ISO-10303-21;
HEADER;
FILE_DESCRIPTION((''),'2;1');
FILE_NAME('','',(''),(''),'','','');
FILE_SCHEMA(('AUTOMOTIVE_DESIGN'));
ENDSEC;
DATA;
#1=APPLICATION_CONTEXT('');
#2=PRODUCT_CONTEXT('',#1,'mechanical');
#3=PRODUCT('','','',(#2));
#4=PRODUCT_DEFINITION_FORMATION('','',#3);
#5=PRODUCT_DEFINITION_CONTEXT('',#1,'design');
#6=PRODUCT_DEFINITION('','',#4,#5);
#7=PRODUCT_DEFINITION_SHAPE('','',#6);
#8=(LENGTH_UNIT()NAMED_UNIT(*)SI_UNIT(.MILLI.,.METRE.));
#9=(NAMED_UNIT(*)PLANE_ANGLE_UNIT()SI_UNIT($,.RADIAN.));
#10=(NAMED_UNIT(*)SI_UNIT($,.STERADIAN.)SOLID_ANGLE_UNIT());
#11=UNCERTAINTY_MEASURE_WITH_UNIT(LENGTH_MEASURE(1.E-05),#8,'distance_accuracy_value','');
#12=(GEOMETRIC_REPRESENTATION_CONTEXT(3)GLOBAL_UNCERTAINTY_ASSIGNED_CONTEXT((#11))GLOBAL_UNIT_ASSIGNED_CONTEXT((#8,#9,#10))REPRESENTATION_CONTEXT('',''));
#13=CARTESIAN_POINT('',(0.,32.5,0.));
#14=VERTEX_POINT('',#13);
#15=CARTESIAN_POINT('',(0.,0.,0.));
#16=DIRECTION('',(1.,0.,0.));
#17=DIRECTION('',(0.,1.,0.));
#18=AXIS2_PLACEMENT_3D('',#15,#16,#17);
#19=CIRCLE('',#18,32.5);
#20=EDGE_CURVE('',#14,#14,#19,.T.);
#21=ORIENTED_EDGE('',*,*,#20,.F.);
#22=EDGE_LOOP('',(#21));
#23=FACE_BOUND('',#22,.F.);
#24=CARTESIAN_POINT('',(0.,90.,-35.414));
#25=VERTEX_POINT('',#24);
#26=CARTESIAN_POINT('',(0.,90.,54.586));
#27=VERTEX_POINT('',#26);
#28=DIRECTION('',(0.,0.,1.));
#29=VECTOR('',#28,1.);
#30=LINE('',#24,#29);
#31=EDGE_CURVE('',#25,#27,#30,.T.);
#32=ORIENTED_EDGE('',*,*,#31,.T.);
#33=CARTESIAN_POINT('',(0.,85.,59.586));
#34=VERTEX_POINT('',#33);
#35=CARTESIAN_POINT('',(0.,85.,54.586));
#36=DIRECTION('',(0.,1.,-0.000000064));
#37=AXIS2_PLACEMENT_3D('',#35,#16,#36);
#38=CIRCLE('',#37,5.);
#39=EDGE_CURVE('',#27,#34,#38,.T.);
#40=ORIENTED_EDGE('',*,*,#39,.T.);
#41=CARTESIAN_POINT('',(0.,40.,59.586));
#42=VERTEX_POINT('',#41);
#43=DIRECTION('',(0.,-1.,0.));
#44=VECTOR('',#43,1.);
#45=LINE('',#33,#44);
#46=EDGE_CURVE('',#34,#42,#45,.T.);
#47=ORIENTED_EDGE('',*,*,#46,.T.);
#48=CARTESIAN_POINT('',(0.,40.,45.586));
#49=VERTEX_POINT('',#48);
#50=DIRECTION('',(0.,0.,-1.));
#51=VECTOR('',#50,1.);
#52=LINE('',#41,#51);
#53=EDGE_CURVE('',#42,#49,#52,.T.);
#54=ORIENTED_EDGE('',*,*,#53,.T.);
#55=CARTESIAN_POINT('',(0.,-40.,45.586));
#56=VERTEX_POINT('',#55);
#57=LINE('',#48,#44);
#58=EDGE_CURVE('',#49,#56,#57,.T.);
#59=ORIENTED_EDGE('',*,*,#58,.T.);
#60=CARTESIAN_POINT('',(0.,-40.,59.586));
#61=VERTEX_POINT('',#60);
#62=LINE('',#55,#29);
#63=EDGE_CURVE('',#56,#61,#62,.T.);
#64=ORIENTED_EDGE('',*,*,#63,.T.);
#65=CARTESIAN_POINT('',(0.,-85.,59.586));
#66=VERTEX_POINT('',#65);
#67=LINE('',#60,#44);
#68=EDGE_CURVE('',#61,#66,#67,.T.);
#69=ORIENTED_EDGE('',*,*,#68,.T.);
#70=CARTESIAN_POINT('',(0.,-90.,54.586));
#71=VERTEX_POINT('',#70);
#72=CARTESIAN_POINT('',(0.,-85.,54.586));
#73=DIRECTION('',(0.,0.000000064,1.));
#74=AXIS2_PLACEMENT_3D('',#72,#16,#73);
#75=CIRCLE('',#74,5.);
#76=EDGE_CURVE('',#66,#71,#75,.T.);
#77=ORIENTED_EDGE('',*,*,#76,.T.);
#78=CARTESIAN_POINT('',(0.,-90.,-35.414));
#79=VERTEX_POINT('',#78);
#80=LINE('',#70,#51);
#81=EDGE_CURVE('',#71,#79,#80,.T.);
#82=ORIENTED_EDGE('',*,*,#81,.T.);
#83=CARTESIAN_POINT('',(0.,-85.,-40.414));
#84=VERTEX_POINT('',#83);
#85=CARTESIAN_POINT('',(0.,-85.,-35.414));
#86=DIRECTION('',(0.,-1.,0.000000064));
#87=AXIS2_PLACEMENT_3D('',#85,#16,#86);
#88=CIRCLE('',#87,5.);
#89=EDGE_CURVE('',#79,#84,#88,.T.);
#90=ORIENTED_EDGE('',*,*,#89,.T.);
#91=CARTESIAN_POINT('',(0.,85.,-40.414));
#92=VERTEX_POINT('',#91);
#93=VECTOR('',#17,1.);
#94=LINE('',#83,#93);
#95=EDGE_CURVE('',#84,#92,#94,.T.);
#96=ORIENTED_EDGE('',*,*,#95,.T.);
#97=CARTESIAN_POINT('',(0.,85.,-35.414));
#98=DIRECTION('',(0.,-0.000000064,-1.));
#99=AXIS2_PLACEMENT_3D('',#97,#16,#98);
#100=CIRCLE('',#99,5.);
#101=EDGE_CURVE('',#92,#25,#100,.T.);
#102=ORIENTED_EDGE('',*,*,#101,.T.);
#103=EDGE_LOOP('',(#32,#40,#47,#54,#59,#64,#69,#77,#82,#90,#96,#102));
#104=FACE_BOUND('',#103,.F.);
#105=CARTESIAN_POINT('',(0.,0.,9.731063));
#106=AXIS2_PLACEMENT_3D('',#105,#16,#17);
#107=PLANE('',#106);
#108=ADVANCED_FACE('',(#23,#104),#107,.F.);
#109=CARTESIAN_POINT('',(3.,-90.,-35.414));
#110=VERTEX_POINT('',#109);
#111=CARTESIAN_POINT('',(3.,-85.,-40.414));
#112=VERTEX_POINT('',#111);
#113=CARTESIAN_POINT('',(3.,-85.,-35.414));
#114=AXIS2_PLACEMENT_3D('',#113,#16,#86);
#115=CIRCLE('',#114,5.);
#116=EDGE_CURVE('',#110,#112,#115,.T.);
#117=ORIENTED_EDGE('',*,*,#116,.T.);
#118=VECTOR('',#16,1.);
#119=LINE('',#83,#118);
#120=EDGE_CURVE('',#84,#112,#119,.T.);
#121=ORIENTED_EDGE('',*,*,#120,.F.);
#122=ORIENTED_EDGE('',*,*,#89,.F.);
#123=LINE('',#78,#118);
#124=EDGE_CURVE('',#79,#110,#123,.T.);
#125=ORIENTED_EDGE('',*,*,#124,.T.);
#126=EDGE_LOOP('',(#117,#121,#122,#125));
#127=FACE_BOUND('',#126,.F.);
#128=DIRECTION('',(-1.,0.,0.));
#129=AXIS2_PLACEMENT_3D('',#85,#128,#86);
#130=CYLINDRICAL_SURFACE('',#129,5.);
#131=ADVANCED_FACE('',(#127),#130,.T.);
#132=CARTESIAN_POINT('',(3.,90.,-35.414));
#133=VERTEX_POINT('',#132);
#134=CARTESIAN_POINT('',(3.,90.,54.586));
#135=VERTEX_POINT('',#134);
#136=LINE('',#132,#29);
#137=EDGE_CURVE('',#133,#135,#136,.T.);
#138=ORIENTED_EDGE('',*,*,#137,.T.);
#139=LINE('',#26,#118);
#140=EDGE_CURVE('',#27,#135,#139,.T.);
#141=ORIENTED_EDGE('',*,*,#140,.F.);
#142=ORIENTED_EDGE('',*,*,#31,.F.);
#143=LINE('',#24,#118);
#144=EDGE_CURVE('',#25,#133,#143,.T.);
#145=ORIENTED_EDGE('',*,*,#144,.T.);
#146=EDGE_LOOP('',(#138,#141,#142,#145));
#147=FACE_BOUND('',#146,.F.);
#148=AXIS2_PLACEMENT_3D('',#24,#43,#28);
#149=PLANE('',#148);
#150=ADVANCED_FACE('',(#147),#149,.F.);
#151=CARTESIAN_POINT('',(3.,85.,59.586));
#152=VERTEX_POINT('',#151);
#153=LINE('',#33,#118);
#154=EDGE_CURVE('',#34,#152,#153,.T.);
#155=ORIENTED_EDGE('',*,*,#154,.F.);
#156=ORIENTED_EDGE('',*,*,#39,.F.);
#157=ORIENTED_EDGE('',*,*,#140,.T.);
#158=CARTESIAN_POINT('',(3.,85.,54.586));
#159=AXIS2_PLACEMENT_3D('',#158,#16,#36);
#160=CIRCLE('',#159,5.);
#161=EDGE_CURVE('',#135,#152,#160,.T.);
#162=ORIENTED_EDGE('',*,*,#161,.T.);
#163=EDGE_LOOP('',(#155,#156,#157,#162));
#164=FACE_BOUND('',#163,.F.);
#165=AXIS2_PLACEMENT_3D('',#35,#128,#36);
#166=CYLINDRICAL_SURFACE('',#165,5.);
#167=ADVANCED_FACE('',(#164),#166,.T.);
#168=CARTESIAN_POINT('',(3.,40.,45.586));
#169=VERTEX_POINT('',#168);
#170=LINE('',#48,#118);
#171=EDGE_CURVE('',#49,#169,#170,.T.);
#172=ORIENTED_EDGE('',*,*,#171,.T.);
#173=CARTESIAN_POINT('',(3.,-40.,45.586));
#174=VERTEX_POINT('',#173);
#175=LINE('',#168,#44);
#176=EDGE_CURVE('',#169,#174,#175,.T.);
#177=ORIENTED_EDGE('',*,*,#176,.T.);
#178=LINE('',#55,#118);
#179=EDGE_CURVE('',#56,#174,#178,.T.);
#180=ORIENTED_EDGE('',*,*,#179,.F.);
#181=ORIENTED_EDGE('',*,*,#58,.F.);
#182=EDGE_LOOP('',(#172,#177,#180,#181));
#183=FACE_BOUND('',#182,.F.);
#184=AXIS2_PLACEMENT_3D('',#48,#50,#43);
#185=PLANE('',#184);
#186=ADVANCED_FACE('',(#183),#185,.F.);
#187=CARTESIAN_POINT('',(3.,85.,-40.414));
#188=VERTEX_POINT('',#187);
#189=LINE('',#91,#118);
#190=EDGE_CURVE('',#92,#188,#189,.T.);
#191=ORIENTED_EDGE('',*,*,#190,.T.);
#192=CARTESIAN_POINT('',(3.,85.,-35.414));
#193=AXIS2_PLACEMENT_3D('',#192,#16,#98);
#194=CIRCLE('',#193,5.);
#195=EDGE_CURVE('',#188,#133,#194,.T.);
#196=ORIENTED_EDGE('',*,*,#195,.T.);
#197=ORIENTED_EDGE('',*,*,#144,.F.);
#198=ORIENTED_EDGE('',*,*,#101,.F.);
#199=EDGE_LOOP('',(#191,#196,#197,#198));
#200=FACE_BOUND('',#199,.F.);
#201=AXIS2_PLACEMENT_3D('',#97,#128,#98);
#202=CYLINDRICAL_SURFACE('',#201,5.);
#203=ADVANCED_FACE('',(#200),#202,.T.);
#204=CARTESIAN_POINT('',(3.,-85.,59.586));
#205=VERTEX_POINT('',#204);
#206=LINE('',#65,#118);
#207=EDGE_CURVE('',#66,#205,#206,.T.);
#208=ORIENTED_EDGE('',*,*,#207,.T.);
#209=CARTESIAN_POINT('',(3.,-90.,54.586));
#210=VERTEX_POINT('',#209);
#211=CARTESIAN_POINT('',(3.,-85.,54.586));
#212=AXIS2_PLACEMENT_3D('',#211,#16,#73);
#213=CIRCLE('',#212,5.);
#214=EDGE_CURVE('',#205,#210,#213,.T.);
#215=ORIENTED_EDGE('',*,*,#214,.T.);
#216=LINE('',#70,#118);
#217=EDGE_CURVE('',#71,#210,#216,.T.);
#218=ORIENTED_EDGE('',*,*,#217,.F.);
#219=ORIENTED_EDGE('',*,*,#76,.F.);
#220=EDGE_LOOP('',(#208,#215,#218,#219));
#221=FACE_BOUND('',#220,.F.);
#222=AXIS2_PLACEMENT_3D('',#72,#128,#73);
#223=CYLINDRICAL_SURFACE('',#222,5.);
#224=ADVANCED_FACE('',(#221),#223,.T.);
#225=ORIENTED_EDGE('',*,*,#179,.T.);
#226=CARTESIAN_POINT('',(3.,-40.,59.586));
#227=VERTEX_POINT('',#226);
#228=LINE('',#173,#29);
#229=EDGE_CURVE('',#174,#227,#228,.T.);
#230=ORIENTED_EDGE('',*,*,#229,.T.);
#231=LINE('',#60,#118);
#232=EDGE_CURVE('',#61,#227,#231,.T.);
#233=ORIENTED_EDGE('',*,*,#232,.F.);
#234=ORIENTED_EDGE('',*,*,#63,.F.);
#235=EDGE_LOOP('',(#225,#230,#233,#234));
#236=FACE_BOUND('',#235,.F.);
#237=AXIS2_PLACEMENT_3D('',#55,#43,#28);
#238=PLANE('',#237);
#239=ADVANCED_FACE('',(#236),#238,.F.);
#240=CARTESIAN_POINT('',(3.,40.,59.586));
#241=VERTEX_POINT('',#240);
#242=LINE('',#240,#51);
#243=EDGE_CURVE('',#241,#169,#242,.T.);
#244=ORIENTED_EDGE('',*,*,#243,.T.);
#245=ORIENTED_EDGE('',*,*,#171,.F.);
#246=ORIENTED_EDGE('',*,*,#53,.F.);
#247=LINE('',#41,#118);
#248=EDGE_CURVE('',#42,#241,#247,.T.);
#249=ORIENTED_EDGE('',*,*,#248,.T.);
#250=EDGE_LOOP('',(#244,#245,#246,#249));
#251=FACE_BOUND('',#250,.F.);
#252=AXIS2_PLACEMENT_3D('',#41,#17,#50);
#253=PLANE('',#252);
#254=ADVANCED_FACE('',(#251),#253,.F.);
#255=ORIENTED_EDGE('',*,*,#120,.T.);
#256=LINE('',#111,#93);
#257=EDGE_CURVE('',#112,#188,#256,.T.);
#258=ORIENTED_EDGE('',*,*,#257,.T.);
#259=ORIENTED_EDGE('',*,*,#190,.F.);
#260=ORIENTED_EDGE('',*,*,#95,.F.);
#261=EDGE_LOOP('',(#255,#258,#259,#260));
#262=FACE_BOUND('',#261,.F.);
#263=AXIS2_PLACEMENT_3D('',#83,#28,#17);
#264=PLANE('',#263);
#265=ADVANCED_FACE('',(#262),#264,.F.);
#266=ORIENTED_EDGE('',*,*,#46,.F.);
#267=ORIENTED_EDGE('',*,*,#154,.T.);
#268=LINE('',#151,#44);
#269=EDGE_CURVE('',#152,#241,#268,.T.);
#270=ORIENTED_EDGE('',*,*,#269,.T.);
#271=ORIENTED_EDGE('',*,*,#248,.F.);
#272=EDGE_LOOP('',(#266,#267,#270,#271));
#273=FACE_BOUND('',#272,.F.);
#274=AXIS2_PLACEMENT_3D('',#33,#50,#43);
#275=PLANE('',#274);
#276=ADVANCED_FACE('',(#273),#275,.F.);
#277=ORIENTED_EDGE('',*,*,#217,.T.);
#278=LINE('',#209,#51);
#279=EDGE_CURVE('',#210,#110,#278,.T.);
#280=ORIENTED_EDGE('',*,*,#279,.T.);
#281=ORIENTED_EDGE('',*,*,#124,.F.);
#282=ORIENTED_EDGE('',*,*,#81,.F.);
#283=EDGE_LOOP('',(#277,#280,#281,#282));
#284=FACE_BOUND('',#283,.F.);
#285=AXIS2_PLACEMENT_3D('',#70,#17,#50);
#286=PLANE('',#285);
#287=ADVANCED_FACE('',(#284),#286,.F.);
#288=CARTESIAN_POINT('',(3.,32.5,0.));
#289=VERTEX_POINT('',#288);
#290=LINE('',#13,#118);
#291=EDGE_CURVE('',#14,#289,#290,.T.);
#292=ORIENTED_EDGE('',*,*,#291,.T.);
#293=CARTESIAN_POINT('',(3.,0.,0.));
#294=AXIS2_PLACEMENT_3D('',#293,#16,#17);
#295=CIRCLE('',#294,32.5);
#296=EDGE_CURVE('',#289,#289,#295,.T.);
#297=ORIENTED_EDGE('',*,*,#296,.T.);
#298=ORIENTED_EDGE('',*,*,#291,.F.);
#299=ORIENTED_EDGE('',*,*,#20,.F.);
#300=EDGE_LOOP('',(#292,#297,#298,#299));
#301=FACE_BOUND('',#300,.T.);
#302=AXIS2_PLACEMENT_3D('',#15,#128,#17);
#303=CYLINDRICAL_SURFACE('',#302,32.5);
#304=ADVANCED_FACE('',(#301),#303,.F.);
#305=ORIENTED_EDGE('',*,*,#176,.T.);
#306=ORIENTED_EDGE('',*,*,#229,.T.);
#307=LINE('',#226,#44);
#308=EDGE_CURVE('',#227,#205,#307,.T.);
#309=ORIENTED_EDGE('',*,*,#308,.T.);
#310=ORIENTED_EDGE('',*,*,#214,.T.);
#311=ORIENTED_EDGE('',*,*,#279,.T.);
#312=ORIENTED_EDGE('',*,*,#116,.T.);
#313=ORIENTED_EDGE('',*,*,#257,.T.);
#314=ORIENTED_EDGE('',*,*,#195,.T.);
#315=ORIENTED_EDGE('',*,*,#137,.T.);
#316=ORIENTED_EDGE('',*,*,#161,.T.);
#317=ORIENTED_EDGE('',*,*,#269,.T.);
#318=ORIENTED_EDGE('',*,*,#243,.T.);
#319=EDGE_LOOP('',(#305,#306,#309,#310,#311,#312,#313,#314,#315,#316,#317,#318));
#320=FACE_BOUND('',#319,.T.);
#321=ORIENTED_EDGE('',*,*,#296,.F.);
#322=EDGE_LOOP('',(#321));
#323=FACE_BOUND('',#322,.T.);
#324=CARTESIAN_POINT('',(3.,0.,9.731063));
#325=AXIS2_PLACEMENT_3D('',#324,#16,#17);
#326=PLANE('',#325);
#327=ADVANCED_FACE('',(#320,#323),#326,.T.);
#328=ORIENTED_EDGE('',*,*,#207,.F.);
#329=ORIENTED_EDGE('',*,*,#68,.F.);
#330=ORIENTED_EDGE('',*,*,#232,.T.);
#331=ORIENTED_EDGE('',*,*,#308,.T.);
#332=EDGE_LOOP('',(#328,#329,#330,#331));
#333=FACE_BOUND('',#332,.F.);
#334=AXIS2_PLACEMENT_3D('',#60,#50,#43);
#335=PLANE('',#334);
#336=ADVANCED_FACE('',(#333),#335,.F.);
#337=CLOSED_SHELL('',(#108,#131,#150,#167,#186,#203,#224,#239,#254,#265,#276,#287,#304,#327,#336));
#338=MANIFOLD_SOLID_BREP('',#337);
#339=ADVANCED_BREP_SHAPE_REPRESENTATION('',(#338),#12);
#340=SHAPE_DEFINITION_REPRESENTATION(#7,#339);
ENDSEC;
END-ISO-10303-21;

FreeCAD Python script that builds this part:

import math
import FreeCAD as App
import Part
import Sketcher
Q = App.Units.Quantity

doc = App.newDocument("Part")
body = doc.addObject("PartDesign::Body", "Body")

# Sketch on YZ plane
sketch1 = body.newObject("Sketcher::SketchObject", "Sketch")
sketch1.AttachmentSupport = (doc.getObject("YZ_Plane"), [""])
sketch1.MapMode = "FlatFace"
sketch1.addGeometry([
    Part.ArcOfCircle(Part.Circle(App.Vector(85, 54.6, 0), App.Vector(0, 0, 1), 5), math.radians(0), math.radians(90)),  # 0
    Part.LineSegment(App.Vector(85, 59.6, 0), App.Vector(40, 59.6, 0)),  # 1
    Part.LineSegment(App.Vector(40, 59.6, 0), App.Vector(40, 45.6, 0)),  # 2
    Part.LineSegment(App.Vector(40, 45.6, 0), App.Vector(-40, 45.6, 0)),  # 3
    Part.LineSegment(App.Vector(-40, 45.6, 0), App.Vector(-40, 59.6, 0)),  # 4
    Part.LineSegment(App.Vector(-40, 59.6, 0), App.Vector(-85, 59.6, 0)),  # 5
    Part.ArcOfCircle(Part.Circle(App.Vector(-85, 54.6, 0), App.Vector(0, 0, 1), 5), math.radians(90), math.radians(180)),  # 6
    Part.LineSegment(App.Vector(-90, 54.6, 0), App.Vector(-90, -35.4, 0)),  # 7
    Part.ArcOfCircle(Part.Circle(App.Vector(-85, -35.4, 0), App.Vector(0, 0, 1), 5), math.radians(180), math.radians(270)),  # 8
    Part.LineSegment(App.Vector(-85, -40.4, 0), App.Vector(85, -40.4, 0)),  # 9
    Part.ArcOfCircle(Part.Circle(App.Vector(85, -35.4, 0), App.Vector(0, 0, 1), 5), math.radians(-90), math.radians(0)),  # 10
    Part.LineSegment(App.Vector(90, -35.4, 0), App.Vector(90, 54.6, 0)),  # 11
    Part.Circle(App.Vector(0, 0, 0), App.Vector(0, 0, 1), 32.5),  # 12
], False)
sketch1.addConstraint([
    Sketcher.Constraint("Tangent", 0, 2, 1, 1),
    Sketcher.Constraint("Coincident", 1, 2, 2, 1),
    Sketcher.Constraint("Coincident", 2, 2, 3, 1),
    Sketcher.Constraint("Coincident", 3, 2, 4, 1),
    Sketcher.Constraint("Coincident", 4, 2, 5, 1),
    Sketcher.Constraint("Tangent", 5, 2, 6, 1),
    Sketcher.Constraint("Tangent", 6, 2, 7, 1),
    Sketcher.Constraint("Tangent", 7, 2, 8, 1),
    Sketcher.Constraint("Tangent", 8, 2, 9, 1),
    Sketcher.Constraint("Tangent", 9, 2, 10, 1),
    Sketcher.Constraint("Tangent", 10, 2, 11, 1),
    Sketcher.Constraint("Tangent", 11, 2, 0, 1),
    Sketcher.Constraint("Horizontal", 1),
    Sketcher.Constraint("Vertical", 2),
    Sketcher.Constraint("Horizontal", 3),
    Sketcher.Constraint("Vertical", 4),
    Sketcher.Constraint("Horizontal", 5),
    Sketcher.Constraint("Vertical", 7),
    Sketcher.Constraint("Horizontal", 9),
    Sketcher.Constraint("Vertical", 11),
    Sketcher.Constraint("Coincident", 12, 3, -1, 1),
    Sketcher.Constraint("Equal", 0, 6),
    Sketcher.Constraint("Equal", 6, 8),
    Sketcher.Constraint("Equal", 8, 10),
    Sketcher.Constraint("Symmetric", 0, 3, 6, 3, -2),
    Sketcher.Constraint("Equal", 1, 5),
    Sketcher.Constraint("Diameter", 12, Q("65 mm")),
    Sketcher.Constraint("Radius", 0, Q("5 mm")),
    Sketcher.Constraint("DistanceX", 1, 2, 1, 1, Q("45 mm")),
    Sketcher.Constraint("DistanceX", 3, 2, 3, 1, Q("80 mm")),
    Sketcher.Constraint("DistanceY", 2, 2, 2, 1, Q("14 mm")),
    Sketcher.Constraint("DistanceY", 7, 2, 7, 1, Q("90 mm")),
    Sketcher.Constraint("DistanceY", -1, 1, 0, 3, Q("54.586 mm")),
])
pad1 = body.newObject("PartDesign::Pad", "Pad")
pad1.Profile = sketch1
pad1.Length = 3

doc.recompute()
